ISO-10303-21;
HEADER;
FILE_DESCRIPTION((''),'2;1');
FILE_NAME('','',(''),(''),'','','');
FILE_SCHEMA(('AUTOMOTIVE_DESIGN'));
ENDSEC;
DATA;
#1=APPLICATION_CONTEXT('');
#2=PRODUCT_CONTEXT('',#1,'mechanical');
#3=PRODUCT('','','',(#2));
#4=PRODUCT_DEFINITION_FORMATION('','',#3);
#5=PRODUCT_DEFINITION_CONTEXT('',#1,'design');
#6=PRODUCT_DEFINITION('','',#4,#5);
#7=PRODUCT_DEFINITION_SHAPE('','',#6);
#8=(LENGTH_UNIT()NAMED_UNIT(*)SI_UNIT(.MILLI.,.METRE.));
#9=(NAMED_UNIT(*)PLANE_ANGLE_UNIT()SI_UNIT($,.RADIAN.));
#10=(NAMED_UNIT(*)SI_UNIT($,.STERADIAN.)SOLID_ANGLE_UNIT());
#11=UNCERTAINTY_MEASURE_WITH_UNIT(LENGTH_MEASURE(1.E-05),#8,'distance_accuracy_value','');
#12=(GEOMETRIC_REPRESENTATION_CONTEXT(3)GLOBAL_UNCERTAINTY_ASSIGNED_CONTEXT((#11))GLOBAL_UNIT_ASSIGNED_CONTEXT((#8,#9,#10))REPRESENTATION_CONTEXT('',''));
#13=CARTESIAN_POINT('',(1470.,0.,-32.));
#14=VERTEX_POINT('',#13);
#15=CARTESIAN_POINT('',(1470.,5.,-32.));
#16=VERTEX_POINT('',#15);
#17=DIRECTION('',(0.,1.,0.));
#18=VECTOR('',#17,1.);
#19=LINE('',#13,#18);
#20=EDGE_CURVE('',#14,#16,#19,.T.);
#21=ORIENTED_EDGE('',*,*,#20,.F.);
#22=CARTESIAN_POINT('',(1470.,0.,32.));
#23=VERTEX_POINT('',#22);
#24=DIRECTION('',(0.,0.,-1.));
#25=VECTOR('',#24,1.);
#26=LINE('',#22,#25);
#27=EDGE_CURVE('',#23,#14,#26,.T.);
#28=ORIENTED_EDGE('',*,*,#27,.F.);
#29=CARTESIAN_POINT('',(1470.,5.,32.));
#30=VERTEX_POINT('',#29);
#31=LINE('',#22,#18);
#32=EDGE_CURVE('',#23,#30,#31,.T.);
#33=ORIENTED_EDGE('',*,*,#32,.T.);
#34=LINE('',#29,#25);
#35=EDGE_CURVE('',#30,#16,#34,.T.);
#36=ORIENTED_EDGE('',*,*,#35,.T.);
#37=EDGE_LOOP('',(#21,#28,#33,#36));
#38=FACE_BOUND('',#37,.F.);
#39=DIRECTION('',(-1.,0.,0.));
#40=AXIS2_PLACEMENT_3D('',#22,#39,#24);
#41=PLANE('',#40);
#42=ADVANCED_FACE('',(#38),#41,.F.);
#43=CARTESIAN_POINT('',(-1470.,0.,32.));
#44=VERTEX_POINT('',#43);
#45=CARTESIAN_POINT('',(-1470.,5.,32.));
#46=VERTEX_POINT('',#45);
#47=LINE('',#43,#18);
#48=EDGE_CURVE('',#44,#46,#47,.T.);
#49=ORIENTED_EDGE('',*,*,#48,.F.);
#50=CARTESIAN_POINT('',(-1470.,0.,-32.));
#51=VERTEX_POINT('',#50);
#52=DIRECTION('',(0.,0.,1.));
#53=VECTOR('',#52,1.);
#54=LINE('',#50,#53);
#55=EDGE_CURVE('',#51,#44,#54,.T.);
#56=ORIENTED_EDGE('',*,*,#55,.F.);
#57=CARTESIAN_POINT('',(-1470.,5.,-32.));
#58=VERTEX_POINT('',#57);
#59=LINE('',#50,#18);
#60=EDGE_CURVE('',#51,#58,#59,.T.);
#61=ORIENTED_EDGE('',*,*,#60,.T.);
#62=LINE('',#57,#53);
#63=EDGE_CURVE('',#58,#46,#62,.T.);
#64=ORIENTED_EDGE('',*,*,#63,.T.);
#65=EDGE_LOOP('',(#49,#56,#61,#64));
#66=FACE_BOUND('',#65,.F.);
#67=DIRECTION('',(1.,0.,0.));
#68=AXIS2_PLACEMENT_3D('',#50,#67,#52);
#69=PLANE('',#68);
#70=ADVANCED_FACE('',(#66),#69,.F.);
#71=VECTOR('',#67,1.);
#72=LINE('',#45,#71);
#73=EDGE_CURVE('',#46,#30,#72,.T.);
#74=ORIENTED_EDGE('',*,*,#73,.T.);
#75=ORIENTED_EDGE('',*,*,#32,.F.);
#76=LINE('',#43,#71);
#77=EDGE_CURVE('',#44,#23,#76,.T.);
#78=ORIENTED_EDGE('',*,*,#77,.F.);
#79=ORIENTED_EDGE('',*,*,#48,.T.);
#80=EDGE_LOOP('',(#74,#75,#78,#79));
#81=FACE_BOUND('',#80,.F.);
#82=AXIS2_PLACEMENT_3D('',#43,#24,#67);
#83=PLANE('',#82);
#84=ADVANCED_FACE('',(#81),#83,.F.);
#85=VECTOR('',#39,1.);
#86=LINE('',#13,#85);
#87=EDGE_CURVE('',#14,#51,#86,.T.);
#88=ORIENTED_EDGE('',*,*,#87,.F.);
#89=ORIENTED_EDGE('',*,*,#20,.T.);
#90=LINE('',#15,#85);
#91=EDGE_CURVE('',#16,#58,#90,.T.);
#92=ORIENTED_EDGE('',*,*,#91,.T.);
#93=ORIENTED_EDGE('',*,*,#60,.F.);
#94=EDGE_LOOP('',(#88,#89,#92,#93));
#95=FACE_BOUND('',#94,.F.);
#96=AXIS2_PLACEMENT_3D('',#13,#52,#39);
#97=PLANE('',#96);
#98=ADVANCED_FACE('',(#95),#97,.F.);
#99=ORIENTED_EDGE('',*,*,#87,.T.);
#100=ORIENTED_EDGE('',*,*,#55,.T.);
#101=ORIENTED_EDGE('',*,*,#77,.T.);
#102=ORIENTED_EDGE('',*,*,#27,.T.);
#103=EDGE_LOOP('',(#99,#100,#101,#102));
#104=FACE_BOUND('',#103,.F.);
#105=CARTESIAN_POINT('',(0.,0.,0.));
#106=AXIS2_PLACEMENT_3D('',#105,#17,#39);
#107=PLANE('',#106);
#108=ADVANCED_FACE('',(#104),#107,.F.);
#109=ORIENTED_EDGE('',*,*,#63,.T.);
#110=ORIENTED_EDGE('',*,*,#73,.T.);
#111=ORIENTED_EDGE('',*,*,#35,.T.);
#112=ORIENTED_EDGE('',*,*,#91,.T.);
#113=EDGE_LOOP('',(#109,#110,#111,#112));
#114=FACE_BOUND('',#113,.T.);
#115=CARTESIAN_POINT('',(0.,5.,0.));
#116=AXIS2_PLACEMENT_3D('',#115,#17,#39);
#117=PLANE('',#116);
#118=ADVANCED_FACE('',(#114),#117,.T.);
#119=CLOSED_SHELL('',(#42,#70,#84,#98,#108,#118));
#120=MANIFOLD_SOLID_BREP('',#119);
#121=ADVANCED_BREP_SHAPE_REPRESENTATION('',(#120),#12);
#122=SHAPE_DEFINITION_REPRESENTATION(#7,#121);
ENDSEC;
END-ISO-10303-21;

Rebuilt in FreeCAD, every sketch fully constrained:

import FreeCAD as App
import Part
import Sketcher
from FreeCAD import Vector

doc = App.newDocument("Part")
body = doc.addObject("PartDesign::Body", "Body")

# Sketch on XZ plane
sketch1 = body.newObject("Sketcher::SketchObject", "Sketch")
sketch1.AttachmentSupport = (doc.getObject("XZ_Plane"), [""])
sketch1.MapMode = "FlatFace"
sketch1.addGeometry(Part.LineSegment(Vector(-1470, -32, 0), Vector(-1470, 32, 0)), False)
sketch1.addGeometry(Part.LineSegment(Vector(-1470, 32, 0), Vector(1470, 32, 0)), False)
sketch1.addGeometry(Part.LineSegment(Vector(1470, 32, 0), Vector(1470, -32, 0)), False)
sketch1.addGeometry(Part.LineSegment(Vector(1470, -32, 0), Vector(-1470, -32, 0)), False)
sketch1.addConstraint(Sketcher.Constraint("Coincident", 0, 2, 1, 1))
sketch1.addConstraint(Sketcher.Constraint("Coincident", 1, 2, 2, 1))
sketch1.addConstraint(Sketcher.Constraint("Coincident", 2, 2, 3, 1))
sketch1.addConstraint(Sketcher.Constraint("Coincident", 3, 2, 0, 1))
sketch1.addConstraint(Sketcher.Constraint("Vertical", 0))
sketch1.addConstraint(Sketcher.Constraint("Horizontal", 1))
sketch1.addConstraint(Sketcher.Constraint("Vertical", 2))
sketch1.addConstraint(Sketcher.Constraint("Horizontal", 3))
sketch1.addConstraint(Sketcher.Constraint("Symmetric", 0, 2, 2, 2, -1, 1))
sketch1.addConstraint(Sketcher.Constraint("DistanceX", 1, 1, 1, 2, 2940.0))
sketch1.addConstraint(Sketcher.Constraint("DistanceY", 0, 1, 0, 2, 64.0))
pad1 = body.newObject("PartDesign::Pad", "Pad")
pad1.Profile = sketch1
pad1.Length = 5
pad1.Reversed = True

doc.recompute()
